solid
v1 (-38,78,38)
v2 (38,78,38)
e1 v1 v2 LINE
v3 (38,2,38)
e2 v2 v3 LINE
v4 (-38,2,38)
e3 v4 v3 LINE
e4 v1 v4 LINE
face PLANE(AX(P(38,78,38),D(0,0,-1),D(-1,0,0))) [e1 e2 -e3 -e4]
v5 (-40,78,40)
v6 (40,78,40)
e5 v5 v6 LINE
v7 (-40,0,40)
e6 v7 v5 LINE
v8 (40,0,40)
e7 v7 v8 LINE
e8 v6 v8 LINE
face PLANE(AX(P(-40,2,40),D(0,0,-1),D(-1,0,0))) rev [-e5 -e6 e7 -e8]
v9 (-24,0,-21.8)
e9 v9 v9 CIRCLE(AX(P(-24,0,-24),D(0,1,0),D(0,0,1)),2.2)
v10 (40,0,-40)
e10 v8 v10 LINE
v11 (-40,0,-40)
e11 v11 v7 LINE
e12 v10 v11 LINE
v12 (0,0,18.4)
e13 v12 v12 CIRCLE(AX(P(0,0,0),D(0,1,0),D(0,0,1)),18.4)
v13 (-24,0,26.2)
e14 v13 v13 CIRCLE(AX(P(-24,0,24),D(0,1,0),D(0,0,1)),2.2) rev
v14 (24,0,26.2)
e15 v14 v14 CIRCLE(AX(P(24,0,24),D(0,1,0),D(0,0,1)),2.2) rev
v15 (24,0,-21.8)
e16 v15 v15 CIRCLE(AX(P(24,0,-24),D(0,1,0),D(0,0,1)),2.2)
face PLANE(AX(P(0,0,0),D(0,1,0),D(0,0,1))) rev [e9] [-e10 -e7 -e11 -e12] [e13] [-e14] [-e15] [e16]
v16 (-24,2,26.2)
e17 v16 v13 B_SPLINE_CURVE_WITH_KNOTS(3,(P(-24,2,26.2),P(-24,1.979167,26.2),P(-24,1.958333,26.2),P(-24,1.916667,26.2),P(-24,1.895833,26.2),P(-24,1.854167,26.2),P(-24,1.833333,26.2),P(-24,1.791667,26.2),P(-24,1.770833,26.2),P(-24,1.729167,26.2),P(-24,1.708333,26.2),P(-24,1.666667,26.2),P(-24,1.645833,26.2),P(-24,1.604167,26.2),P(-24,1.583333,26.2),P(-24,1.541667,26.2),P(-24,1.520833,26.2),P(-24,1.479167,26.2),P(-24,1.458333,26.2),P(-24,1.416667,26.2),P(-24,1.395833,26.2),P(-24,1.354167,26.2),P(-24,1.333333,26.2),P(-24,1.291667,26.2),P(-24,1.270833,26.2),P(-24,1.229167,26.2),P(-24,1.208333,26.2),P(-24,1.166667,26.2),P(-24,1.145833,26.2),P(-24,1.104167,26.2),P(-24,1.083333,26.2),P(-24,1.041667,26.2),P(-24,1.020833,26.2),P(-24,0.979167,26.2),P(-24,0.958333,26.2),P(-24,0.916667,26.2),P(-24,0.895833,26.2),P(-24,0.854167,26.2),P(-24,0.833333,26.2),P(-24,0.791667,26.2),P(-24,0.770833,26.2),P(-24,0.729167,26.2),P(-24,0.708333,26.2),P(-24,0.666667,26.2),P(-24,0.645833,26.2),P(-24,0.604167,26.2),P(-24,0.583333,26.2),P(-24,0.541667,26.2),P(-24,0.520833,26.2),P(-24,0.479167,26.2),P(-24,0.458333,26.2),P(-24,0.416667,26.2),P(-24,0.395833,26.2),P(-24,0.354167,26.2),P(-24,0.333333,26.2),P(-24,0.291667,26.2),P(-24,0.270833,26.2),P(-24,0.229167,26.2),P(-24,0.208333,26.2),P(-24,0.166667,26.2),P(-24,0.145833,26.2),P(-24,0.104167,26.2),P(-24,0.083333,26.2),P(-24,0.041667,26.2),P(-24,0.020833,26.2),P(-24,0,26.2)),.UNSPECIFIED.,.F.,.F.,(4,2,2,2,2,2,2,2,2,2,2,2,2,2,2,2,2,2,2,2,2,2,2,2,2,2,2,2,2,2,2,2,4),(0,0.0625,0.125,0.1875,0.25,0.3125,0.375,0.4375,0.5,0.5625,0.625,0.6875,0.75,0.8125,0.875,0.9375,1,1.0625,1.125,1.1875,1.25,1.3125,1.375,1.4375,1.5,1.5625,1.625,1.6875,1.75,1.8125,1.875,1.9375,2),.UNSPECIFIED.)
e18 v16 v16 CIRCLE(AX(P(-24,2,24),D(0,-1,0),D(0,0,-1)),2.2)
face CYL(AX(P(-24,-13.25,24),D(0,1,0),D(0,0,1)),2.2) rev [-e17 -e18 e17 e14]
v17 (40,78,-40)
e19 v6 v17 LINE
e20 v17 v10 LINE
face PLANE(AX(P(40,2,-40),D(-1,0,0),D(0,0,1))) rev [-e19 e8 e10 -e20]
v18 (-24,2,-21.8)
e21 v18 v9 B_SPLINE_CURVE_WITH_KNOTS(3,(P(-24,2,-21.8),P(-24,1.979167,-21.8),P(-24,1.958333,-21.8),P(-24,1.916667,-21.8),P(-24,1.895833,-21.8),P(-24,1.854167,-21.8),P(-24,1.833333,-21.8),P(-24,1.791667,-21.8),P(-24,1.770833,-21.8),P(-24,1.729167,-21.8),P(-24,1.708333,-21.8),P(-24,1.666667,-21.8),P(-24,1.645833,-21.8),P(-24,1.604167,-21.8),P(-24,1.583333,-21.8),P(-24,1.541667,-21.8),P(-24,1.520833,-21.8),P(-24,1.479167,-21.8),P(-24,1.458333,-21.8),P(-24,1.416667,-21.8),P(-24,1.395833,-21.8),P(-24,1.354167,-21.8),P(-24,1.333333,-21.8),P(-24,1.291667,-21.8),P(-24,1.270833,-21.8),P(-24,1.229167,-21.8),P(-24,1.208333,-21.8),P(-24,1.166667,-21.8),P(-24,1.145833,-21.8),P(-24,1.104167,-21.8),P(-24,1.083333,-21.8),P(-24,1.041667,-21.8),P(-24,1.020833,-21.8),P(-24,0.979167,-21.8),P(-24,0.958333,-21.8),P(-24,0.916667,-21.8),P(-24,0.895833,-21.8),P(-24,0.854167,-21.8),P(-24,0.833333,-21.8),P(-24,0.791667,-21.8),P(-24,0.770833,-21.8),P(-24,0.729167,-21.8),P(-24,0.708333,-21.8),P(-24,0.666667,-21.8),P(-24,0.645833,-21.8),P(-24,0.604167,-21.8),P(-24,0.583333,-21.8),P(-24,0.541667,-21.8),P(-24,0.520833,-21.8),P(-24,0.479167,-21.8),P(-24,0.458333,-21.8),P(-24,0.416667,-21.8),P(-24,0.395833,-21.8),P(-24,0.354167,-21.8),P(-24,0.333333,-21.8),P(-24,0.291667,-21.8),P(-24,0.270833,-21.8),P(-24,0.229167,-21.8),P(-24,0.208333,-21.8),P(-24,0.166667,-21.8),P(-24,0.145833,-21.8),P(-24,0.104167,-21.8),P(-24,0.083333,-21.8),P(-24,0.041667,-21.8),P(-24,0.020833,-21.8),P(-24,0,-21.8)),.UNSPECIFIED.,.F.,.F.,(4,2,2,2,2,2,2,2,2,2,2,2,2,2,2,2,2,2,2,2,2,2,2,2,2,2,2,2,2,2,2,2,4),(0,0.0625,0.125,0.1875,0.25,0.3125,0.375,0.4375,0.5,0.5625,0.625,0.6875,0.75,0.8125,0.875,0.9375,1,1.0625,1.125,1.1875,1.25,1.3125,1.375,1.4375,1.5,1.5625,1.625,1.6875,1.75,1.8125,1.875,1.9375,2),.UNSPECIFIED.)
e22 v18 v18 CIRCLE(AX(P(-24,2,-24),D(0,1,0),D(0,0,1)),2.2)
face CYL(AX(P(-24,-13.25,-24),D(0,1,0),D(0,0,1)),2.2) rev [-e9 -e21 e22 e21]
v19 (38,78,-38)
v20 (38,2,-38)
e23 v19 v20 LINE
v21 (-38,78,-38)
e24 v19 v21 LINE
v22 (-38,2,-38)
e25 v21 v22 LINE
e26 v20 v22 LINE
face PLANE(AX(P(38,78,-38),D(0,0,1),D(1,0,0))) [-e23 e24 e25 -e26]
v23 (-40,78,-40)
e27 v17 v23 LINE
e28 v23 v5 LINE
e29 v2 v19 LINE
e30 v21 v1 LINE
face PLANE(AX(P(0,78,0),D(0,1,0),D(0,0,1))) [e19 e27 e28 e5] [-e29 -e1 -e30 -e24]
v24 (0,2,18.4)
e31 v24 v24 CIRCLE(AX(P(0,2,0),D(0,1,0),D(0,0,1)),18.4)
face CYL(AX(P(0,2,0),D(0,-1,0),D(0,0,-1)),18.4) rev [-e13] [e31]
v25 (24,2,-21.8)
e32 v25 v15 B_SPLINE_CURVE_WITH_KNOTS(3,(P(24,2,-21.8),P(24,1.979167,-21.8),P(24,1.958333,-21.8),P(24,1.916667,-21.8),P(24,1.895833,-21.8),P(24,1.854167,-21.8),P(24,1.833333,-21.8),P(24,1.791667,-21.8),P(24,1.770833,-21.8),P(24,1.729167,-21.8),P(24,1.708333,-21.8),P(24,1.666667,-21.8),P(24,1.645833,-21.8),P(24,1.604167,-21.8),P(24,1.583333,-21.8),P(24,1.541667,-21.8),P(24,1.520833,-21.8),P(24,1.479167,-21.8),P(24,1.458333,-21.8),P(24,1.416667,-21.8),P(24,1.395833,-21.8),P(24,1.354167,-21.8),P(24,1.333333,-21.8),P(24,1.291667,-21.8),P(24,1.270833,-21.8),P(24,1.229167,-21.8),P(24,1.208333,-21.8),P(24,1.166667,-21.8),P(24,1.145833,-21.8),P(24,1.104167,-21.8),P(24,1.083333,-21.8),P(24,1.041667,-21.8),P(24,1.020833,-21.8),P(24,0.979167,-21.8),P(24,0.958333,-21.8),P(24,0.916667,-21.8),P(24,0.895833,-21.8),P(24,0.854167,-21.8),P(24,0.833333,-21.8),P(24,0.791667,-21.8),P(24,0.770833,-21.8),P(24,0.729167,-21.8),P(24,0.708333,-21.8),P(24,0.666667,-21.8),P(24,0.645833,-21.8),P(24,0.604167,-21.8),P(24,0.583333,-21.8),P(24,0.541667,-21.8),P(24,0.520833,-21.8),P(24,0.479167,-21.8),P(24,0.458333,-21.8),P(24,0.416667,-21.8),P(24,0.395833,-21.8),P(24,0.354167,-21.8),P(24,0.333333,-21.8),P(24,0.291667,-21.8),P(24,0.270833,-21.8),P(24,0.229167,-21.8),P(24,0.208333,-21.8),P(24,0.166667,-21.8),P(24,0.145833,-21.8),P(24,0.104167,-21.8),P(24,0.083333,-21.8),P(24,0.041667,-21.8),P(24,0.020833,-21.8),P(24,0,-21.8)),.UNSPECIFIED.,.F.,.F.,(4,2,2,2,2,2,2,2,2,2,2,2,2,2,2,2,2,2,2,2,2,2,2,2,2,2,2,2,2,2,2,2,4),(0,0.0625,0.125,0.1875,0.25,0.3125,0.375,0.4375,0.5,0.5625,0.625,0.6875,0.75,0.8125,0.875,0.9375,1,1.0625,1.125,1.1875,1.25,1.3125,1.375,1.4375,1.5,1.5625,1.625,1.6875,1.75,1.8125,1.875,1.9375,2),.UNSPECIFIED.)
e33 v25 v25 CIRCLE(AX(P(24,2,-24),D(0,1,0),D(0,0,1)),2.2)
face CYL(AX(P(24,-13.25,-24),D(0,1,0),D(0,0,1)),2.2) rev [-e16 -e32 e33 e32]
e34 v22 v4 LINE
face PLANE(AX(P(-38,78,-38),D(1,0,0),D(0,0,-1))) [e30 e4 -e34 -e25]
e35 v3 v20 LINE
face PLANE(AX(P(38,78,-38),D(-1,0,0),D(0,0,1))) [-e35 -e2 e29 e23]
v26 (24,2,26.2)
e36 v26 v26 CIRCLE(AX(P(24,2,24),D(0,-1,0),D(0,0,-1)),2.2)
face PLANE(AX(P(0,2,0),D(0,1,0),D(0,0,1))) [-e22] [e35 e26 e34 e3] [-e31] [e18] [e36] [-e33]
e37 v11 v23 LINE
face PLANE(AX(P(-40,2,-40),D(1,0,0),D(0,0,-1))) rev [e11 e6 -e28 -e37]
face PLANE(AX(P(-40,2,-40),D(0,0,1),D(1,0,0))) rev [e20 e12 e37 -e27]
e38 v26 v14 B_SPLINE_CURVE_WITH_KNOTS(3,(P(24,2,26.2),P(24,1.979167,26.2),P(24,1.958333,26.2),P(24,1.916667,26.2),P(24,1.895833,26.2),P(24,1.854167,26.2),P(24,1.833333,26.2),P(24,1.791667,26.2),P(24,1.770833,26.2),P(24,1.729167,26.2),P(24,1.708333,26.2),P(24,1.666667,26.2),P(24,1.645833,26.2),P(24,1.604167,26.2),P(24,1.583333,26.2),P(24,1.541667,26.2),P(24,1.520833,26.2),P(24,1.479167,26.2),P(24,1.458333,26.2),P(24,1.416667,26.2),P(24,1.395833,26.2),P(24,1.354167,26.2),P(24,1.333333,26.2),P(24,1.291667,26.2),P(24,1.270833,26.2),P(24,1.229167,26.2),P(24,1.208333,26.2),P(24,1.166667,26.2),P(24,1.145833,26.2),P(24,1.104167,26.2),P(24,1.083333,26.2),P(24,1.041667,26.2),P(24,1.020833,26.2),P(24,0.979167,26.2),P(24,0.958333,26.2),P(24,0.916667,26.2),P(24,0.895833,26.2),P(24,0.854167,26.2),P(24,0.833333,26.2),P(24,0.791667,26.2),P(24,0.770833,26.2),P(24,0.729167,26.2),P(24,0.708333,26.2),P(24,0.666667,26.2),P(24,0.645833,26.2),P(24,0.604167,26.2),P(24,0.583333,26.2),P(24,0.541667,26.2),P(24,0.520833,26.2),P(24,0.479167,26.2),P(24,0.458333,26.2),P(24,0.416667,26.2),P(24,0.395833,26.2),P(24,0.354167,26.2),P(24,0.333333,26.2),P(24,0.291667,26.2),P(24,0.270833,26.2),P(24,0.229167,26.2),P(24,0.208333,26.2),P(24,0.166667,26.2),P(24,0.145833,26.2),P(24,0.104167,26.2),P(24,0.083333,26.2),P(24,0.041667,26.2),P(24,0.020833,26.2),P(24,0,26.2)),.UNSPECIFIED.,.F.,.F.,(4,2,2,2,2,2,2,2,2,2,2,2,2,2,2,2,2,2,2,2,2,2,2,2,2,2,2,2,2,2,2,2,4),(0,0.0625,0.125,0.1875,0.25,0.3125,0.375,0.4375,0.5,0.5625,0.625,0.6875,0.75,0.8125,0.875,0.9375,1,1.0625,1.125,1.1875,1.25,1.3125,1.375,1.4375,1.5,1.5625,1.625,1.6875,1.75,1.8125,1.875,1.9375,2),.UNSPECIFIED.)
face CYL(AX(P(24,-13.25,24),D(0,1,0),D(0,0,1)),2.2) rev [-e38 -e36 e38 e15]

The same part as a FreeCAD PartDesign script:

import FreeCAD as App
import Part
import Sketcher

V = App.Vector
Q = App.Units.Quantity

doc = App.newDocument("Part")
body = doc.addObject("PartDesign::Body", "Body")

# Sketch on XZ plane
sketch1 = body.newObject("Sketcher::SketchObject", "Sketch")
sketch1.AttachmentSupport = (doc.getObject("XZ_Plane"), [""])
sketch1.MapMode = "FlatFace"
sketch1.addGeometry([
    Part.LineSegment(V(-40, -40, 0), V(-40, 40, 0)),  # 0
    Part.LineSegment(V(-40, 40, 0), V(40, 40, 0)),  # 1
    Part.LineSegment(V(40, 40, 0), V(40, -40, 0)),  # 2
    Part.LineSegment(V(40, -40, 0), V(-40, -40, 0)),  # 3
    Part.Circle(V(0, 0, 0), V(0, 0, 1), 18),  # 4
], False)
sketch1.addConstraint([
    Sketcher.Constraint("Coincident", 0, 2, 1, 1),
    Sketcher.Constraint("Coincident", 1, 2, 2, 1),
    Sketcher.Constraint("Coincident", 2, 2, 3, 1),
    Sketcher.Constraint("Coincident", 3, 2, 0, 1),
    Sketcher.Constraint("Vertical", 0),
    Sketcher.Constraint("Horizontal", 1),
    Sketcher.Constraint("Vertical", 2),
    Sketcher.Constraint("Horizontal", 3),
    Sketcher.Constraint("Coincident", 4, 3, -1, 1),
    Sketcher.Constraint("Symmetric", 0, 2, 2, 2, -1, 1),
    Sketcher.Constraint("Equal", 3, 0),
    Sketcher.Constraint("Diameter", 4, Q("36.8 mm")),
    Sketcher.Constraint("DistanceX", 1, 1, 1, 2, Q("80 mm")),
])
pad1 = body.newObject("PartDesign::Pad", "Pad")
pad1.Profile = sketch1
pad1.Length = 2
pad1.Reversed = True

# Sketch on XZ plane
sketch2 = body.newObject("Sketcher::SketchObject", "Sketch001")
sketch2.AttachmentSupport = (doc.getObject("XZ_Plane"), [""])
sketch2.MapMode = "FlatFace"
sketch2.AttachmentOffset = App.Placement(V(0, 0, -2), App.Rotation())
sketch2.addGeometry([
    Part.LineSegment(V(40, 21.5, 0), V(40, 40, 0)),
    Part.LineSegment(V(40, 40, 0), V(44, 40, 0)),
    Part.LineSegment(V(44, 40, 0), V(44, 21.5, 0)),
    Part.LineSegment(V(44, 21.5, 0), V(40, 21.5, 0)),
], False)
sketch2.addConstraint([
    Sketcher.Constraint("Coincident", 0, 2, 1, 1),
    Sketcher.Constraint("Coincident", 1, 2, 2, 1),
    Sketcher.Constraint("Coincident", 2, 2, 3, 1),
    Sketcher.Constraint("Coincident", 3, 2, 0, 1),
    Sketcher.Constraint("Vertical", 0),
    Sketcher.Constraint("Horizontal", 1),
    Sketcher.Constraint("Vertical", 2),
    Sketcher.Constraint("Horizontal", 3),
    Sketcher.Constraint("DistanceX", 1, 1, 1, 2, Q("4 mm")),
    Sketcher.Constraint("DistanceY", 0, 1, 0, 2, Q("18.5 mm")),
    Sketcher.Constraint("DistanceX", -1, 1, 0, 2, Q("40 mm")),
    Sketcher.Constraint("DistanceY", -1, 1, 0, 2, Q("40 mm")),
])
pad2 = body.newObject("PartDesign::Pad", "Pad001")
pad2.Profile = sketch2
pad2.Length = 15.25

# Sketch on YZ plane
sketch3 = body.newObject("Sketcher::SketchObject", "Sketch002")
sketch3.AttachmentSupport = (doc.getObject("YZ_Plane"), [""])
sketch3.MapMode = "FlatFace"
sketch3.AttachmentOffset = App.Placement(V(0, 0, 44), App.Rotation())
sketch3.addGeometry(Part.Circle(V(-8.1, 30.8, 0), V(0, 0, 1), 2.2), False)
sketch3.addConstraint([
    Sketcher.Constraint("Diameter", 0, Q("4.4 mm")),
    Sketcher.Constraint("DistanceY", -1, 1, 0, 3, Q("30.75 mm")),
    Sketcher.Constraint("DistanceX", 0, 3, -1, 1, Q("8.125 mm")),
])
pocket1 = body.newObject("PartDesign::Pocket", "Pocket")
pocket1.Profile = sketch3
pocket1.Type = "ThroughAll"
doc.recompute()

mirrored = body.newObject("PartDesign::Mirrored", "Mirrored")
mirrored.Originals = [pad2, pocket1]
mirrored.MirrorPlane = (doc.getObject("YZ_Plane"), [""])
body.Tip = mirrored
doc.recompute()

mirrored2 = body.newObject("PartDesign::Mirrored", "Mirrored001")
mirrored2.Originals = [pad2, pocket1]
mirrored2.MirrorPlane = (doc.getObject("XY_Plane"), [""])
body.Tip = mirrored2

# Sketch on XZ plane
sketch4 = body.newObject("Sketcher::SketchObject", "Sketch003")
sketch4.AttachmentSupport = (doc.getObject("XZ_Plane"), [""])
sketch4.MapMode = "FlatFace"
sketch4.AttachmentOffset = App.Placement(V(0, 0, -2), App.Rotation())
sketch4.addGeometry([
    Part.LineSegment(V(-40, -21.5, 0), V(-40, -40, 0)),
    Part.LineSegment(V(-40, -40, 0), V(-44, -40, 0)),
    Part.LineSegment(V(-44, -40, 0), V(-44, -21.5, 0)),
    Part.LineSegment(V(-44, -21.5, 0), V(-40, -21.5, 0)),
], False)
sketch4.addConstraint([
    Sketcher.Constraint("Coincident", 0, 2, 1, 1),
    Sketcher.Constraint("Coincident", 1, 2, 2, 1),
    Sketcher.Constraint("Coincident", 2, 2, 3, 1),
    Sketcher.Constraint("Coincident", 3, 2, 0, 1),
    Sketcher.Constraint("Vertical", 0),
    Sketcher.Constraint("Horizontal", 1),
    Sketcher.Constraint("Vertical", 2),
    Sketcher.Constraint("Horizontal", 3),
    Sketcher.Constraint("DistanceX", 1, 2, 1, 1, Q("4 mm")),
    Sketcher.Constraint("DistanceY", 0, 2, 0, 1, Q("18.5 mm")),
    Sketcher.Constraint("DistanceX", 0, 2, -1, 1, Q("40 mm")),
    Sketcher.Constraint("DistanceY", 0, 2, -1, 1, Q("40 mm")),
])
pad3 = body.newObject("PartDesign::Pad", "Pad002")
pad3.Profile = sketch4
pad3.Length = 15.25

# Sketch on YZ plane
sketch5 = body.newObject("Sketcher::SketchObject", "Sketch004")
sketch5.AttachmentSupport = (doc.getObject("YZ_Plane"), [""])
sketch5.MapMode = "FlatFace"
sketch5.AttachmentOffset = App.Placement(V(0, 0, -44), App.Rotation())
sketch5.addGeometry(Part.Circle(V(-8.1, -30.8, 0), V(0, 0, 1), 2.2), False)
sketch5.addConstraint([
    Sketcher.Constraint("Diameter", 0, Q("4.4 mm")),
    Sketcher.Constraint("DistanceY", 0, 3, -1, 1, Q("30.75 mm")),
    Sketcher.Constraint("DistanceX", 0, 3, -1, 1, Q("8.125 mm")),
])
pocket2 = body.newObject("PartDesign::Pocket", "Pocket001")
pocket2.Profile = sketch5
pocket2.Type = "ThroughAll"
pocket2.Reversed = True

# Sketch on XZ plane
sketch6 = body.newObject("Sketcher::SketchObject", "Sketch005")
sketch6.AttachmentSupport = (doc.getObject("XZ_Plane"), [""])
sketch6.MapMode = "FlatFace"
sketch6.AttachmentOffset = App.Placement(V(0, 0, -2), App.Rotation())
sketch6.addGeometry([
    Part.Circle(V(-24, -24, 0), V(0, 0, 1), 2.2),
    Part.Circle(V(24, -24, 0), V(0, 0, 1), 2.2),
], False)
sketch6.addConstraint([
    Sketcher.Constraint("Equal", 0, 1),
    Sketcher.Constraint("Symmetric", 0, 3, 1, 3, -2),
    Sketcher.Constraint("Diameter", 0, Q("4.4 mm")),
    Sketcher.Constraint("DistanceX", 0, 3, -1, 1, Q("24 mm")),
    Sketcher.Constraint("DistanceY", 0, 3, -1, 1, Q("24 mm")),
])
pocket3 = body.newObject("PartDesign::Pocket", "Pocket002")
pocket3.Profile = sketch6
pocket3.Type = "ThroughAll"
pocket3.Reversed = True
doc.recompute()

mirrored3 = body.newObject("PartDesign::Mirrored", "Mirrored002")
mirrored3.Originals = [pocket3]
mirrored3.MirrorPlane = (doc.getObject("XY_Plane"), [""])
body.Tip = mirrored3

# Sketch on XY plane
sketch7 = body.newObject("Sketcher::SketchObject", "Sketch006")
sketch7.AttachmentSupport = (doc.getObject("XY_Plane"), [""])
sketch7.MapMode = "FlatFace"
sketch7.AttachmentOffset = App.Placement(V(0, 0, 40), App.Rotation())
sketch7.addGeometry([
    Part.LineSegment(V(-44, 2, 0), V(-44, -13.2, 0)),  # 0
    Part.LineSegment(V(-44, -13.2, 0), V(-40, -13.2, 0)),  # 1
    Part.LineSegment(V(-40, -13.2, 0), V(-40, 2, 0)),  # 2
    Part.LineSegment(V(-40, 2, 0), V(-44, 2, 0)),  # 3
    Part.LineSegment(V(40, 2, 0), V(40, -13.2, 0)),  # 4
    Part.LineSegment(V(40, -13.2, 0), V(44, -13.2, 0)),  # 5
    Part.LineSegment(V(44, -13.2, 0), V(44, 2, 0)),  # 6
    Part.LineSegment(V(44, 2, 0), V(40, 2, 0)),  # 7
], False)
sketch7.addConstraint([
    Sketcher.Constraint("Coincident", 0, 2, 1, 1),
    Sketcher.Constraint("Coincident", 1, 2, 2, 1),
    Sketcher.Constraint("Coincident", 2, 2, 3, 1),
    Sketcher.Constraint("Coincident", 3, 2, 0, 1),
    Sketcher.Constraint("Coincident", 4, 2, 5, 1),
    Sketcher.Constraint("Coincident", 5, 2, 6, 1),
    Sketcher.Constraint("Coincident", 6, 2, 7, 1),
    Sketcher.Constraint("Coincident", 7, 2, 4, 1),
    Sketcher.Constraint("Vertical", 0),
    Sketcher.Constraint("Horizontal", 1),
    Sketcher.Constraint("Vertical", 2),
    Sketcher.Constraint("Horizontal", 3),
    Sketcher.Constraint("Vertical", 4),
    Sketcher.Constraint("Horizontal", 5),
    Sketcher.Constraint("Vertical", 6),
    Sketcher.Constraint("Horizontal", 7),
    Sketcher.Constraint("Symmetric", 1, 2, 4, 2, -2),
    Sketcher.Constraint("Symmetric", 3, 2, 6, 2, -2),
    Sketcher.Constraint("DistanceX", 1, 1, 1, 2, Q("4 mm")),
    Sketcher.Constraint("DistanceX", 0, 2, -1, 1, Q("44 mm")),
    Sketcher.Constraint("DistanceY", -1, 1, 2, 2, Q("2 mm")),
    Sketcher.Constraint("DistanceY", 0, 2, 0, 1, Q("15.25 mm")),
])
pocket4 = body.newObject("PartDesign::Pocket", "Pocket003")
pocket4.Profile = sketch7
pocket4.Type = "ThroughAll"

# Sketch on XZ plane
sketch8 = body.newObject("Sketcher::SketchObject", "Sketch007")
sketch8.AttachmentSupport = (doc.getObject("XZ_Plane"), [""])
sketch8.MapMode = "FlatFace"
sketch8.AttachmentOffset = App.Placement(V(0, 0, -2), App.Rotation())
sketch8.addGeometry([
    Part.LineSegment(V(-40, -40, 0), V(-40, 40, 0)),  # 0
    Part.LineSegment(V(-40, 40, 0), V(40, 40, 0)),  # 1
    Part.LineSegment(V(40, 40, 0), V(40, -40, 0)),  # 2
    Part.LineSegment(V(40, -40, 0), V(-40, -40, 0)),  # 3
    Part.LineSegment(V(38, 38, 0), V(-38, 38, 0)),  # 4
    Part.LineSegment(V(-38, 38, 0), V(-38, -38, 0)),  # 5
    Part.LineSegment(V(-38, -38, 0), V(38, -38, 0)),  # 6
    Part.LineSegment(V(38, -38, 0), V(38, 38, 0)),  # 7
], False)
sketch8.addConstraint([
    Sketcher.Constraint("Coincident", 0, 2, 1, 1),
    Sketcher.Constraint("Coincident", 1, 2, 2, 1),
    Sketcher.Constraint("Coincident", 2, 2, 3, 1),
    Sketcher.Constraint("Coincident", 3, 2, 0, 1),
    Sketcher.Constraint("Coincident", 4, 2, 5, 1),
    Sketcher.Constraint("Coincident", 5, 2, 6, 1),
    Sketcher.Constraint("Coincident", 6, 2, 7, 1),
    Sketcher.Constraint("Coincident", 7, 2, 4, 1),
    Sketcher.Constraint("Vertical", 0),
    Sketcher.Constraint("Horizontal", 1),
    Sketcher.Constraint("Vertical", 2),
    Sketcher.Constraint("Horizontal", 3),
    Sketcher.Constraint("Horizontal", 4),
    Sketcher.Constraint("Vertical", 5),
    Sketcher.Constraint("Horizontal", 6),
    Sketcher.Constraint("Vertical", 7),
    Sketcher.Constraint("Symmetric", 0, 2, 2, 2, -1, 1),
    Sketcher.Constraint("Symmetric", 4, 2, 6, 2, -1, 1),
    Sketcher.Constraint("Equal", 3, 0),
    Sketcher.Constraint("Equal", 6, 5),
    Sketcher.Constraint("DistanceX", 1, 1, 1, 2, Q("80 mm")),
    Sketcher.Constraint("DistanceX", 4, 2, 4, 1, Q("76 mm")),
])
pad4 = body.newObject("PartDesign::Pad", "Pad003")
pad4.Profile = sketch8
pad4.Length = 76
pad4.Reversed = True

doc.recompute()
